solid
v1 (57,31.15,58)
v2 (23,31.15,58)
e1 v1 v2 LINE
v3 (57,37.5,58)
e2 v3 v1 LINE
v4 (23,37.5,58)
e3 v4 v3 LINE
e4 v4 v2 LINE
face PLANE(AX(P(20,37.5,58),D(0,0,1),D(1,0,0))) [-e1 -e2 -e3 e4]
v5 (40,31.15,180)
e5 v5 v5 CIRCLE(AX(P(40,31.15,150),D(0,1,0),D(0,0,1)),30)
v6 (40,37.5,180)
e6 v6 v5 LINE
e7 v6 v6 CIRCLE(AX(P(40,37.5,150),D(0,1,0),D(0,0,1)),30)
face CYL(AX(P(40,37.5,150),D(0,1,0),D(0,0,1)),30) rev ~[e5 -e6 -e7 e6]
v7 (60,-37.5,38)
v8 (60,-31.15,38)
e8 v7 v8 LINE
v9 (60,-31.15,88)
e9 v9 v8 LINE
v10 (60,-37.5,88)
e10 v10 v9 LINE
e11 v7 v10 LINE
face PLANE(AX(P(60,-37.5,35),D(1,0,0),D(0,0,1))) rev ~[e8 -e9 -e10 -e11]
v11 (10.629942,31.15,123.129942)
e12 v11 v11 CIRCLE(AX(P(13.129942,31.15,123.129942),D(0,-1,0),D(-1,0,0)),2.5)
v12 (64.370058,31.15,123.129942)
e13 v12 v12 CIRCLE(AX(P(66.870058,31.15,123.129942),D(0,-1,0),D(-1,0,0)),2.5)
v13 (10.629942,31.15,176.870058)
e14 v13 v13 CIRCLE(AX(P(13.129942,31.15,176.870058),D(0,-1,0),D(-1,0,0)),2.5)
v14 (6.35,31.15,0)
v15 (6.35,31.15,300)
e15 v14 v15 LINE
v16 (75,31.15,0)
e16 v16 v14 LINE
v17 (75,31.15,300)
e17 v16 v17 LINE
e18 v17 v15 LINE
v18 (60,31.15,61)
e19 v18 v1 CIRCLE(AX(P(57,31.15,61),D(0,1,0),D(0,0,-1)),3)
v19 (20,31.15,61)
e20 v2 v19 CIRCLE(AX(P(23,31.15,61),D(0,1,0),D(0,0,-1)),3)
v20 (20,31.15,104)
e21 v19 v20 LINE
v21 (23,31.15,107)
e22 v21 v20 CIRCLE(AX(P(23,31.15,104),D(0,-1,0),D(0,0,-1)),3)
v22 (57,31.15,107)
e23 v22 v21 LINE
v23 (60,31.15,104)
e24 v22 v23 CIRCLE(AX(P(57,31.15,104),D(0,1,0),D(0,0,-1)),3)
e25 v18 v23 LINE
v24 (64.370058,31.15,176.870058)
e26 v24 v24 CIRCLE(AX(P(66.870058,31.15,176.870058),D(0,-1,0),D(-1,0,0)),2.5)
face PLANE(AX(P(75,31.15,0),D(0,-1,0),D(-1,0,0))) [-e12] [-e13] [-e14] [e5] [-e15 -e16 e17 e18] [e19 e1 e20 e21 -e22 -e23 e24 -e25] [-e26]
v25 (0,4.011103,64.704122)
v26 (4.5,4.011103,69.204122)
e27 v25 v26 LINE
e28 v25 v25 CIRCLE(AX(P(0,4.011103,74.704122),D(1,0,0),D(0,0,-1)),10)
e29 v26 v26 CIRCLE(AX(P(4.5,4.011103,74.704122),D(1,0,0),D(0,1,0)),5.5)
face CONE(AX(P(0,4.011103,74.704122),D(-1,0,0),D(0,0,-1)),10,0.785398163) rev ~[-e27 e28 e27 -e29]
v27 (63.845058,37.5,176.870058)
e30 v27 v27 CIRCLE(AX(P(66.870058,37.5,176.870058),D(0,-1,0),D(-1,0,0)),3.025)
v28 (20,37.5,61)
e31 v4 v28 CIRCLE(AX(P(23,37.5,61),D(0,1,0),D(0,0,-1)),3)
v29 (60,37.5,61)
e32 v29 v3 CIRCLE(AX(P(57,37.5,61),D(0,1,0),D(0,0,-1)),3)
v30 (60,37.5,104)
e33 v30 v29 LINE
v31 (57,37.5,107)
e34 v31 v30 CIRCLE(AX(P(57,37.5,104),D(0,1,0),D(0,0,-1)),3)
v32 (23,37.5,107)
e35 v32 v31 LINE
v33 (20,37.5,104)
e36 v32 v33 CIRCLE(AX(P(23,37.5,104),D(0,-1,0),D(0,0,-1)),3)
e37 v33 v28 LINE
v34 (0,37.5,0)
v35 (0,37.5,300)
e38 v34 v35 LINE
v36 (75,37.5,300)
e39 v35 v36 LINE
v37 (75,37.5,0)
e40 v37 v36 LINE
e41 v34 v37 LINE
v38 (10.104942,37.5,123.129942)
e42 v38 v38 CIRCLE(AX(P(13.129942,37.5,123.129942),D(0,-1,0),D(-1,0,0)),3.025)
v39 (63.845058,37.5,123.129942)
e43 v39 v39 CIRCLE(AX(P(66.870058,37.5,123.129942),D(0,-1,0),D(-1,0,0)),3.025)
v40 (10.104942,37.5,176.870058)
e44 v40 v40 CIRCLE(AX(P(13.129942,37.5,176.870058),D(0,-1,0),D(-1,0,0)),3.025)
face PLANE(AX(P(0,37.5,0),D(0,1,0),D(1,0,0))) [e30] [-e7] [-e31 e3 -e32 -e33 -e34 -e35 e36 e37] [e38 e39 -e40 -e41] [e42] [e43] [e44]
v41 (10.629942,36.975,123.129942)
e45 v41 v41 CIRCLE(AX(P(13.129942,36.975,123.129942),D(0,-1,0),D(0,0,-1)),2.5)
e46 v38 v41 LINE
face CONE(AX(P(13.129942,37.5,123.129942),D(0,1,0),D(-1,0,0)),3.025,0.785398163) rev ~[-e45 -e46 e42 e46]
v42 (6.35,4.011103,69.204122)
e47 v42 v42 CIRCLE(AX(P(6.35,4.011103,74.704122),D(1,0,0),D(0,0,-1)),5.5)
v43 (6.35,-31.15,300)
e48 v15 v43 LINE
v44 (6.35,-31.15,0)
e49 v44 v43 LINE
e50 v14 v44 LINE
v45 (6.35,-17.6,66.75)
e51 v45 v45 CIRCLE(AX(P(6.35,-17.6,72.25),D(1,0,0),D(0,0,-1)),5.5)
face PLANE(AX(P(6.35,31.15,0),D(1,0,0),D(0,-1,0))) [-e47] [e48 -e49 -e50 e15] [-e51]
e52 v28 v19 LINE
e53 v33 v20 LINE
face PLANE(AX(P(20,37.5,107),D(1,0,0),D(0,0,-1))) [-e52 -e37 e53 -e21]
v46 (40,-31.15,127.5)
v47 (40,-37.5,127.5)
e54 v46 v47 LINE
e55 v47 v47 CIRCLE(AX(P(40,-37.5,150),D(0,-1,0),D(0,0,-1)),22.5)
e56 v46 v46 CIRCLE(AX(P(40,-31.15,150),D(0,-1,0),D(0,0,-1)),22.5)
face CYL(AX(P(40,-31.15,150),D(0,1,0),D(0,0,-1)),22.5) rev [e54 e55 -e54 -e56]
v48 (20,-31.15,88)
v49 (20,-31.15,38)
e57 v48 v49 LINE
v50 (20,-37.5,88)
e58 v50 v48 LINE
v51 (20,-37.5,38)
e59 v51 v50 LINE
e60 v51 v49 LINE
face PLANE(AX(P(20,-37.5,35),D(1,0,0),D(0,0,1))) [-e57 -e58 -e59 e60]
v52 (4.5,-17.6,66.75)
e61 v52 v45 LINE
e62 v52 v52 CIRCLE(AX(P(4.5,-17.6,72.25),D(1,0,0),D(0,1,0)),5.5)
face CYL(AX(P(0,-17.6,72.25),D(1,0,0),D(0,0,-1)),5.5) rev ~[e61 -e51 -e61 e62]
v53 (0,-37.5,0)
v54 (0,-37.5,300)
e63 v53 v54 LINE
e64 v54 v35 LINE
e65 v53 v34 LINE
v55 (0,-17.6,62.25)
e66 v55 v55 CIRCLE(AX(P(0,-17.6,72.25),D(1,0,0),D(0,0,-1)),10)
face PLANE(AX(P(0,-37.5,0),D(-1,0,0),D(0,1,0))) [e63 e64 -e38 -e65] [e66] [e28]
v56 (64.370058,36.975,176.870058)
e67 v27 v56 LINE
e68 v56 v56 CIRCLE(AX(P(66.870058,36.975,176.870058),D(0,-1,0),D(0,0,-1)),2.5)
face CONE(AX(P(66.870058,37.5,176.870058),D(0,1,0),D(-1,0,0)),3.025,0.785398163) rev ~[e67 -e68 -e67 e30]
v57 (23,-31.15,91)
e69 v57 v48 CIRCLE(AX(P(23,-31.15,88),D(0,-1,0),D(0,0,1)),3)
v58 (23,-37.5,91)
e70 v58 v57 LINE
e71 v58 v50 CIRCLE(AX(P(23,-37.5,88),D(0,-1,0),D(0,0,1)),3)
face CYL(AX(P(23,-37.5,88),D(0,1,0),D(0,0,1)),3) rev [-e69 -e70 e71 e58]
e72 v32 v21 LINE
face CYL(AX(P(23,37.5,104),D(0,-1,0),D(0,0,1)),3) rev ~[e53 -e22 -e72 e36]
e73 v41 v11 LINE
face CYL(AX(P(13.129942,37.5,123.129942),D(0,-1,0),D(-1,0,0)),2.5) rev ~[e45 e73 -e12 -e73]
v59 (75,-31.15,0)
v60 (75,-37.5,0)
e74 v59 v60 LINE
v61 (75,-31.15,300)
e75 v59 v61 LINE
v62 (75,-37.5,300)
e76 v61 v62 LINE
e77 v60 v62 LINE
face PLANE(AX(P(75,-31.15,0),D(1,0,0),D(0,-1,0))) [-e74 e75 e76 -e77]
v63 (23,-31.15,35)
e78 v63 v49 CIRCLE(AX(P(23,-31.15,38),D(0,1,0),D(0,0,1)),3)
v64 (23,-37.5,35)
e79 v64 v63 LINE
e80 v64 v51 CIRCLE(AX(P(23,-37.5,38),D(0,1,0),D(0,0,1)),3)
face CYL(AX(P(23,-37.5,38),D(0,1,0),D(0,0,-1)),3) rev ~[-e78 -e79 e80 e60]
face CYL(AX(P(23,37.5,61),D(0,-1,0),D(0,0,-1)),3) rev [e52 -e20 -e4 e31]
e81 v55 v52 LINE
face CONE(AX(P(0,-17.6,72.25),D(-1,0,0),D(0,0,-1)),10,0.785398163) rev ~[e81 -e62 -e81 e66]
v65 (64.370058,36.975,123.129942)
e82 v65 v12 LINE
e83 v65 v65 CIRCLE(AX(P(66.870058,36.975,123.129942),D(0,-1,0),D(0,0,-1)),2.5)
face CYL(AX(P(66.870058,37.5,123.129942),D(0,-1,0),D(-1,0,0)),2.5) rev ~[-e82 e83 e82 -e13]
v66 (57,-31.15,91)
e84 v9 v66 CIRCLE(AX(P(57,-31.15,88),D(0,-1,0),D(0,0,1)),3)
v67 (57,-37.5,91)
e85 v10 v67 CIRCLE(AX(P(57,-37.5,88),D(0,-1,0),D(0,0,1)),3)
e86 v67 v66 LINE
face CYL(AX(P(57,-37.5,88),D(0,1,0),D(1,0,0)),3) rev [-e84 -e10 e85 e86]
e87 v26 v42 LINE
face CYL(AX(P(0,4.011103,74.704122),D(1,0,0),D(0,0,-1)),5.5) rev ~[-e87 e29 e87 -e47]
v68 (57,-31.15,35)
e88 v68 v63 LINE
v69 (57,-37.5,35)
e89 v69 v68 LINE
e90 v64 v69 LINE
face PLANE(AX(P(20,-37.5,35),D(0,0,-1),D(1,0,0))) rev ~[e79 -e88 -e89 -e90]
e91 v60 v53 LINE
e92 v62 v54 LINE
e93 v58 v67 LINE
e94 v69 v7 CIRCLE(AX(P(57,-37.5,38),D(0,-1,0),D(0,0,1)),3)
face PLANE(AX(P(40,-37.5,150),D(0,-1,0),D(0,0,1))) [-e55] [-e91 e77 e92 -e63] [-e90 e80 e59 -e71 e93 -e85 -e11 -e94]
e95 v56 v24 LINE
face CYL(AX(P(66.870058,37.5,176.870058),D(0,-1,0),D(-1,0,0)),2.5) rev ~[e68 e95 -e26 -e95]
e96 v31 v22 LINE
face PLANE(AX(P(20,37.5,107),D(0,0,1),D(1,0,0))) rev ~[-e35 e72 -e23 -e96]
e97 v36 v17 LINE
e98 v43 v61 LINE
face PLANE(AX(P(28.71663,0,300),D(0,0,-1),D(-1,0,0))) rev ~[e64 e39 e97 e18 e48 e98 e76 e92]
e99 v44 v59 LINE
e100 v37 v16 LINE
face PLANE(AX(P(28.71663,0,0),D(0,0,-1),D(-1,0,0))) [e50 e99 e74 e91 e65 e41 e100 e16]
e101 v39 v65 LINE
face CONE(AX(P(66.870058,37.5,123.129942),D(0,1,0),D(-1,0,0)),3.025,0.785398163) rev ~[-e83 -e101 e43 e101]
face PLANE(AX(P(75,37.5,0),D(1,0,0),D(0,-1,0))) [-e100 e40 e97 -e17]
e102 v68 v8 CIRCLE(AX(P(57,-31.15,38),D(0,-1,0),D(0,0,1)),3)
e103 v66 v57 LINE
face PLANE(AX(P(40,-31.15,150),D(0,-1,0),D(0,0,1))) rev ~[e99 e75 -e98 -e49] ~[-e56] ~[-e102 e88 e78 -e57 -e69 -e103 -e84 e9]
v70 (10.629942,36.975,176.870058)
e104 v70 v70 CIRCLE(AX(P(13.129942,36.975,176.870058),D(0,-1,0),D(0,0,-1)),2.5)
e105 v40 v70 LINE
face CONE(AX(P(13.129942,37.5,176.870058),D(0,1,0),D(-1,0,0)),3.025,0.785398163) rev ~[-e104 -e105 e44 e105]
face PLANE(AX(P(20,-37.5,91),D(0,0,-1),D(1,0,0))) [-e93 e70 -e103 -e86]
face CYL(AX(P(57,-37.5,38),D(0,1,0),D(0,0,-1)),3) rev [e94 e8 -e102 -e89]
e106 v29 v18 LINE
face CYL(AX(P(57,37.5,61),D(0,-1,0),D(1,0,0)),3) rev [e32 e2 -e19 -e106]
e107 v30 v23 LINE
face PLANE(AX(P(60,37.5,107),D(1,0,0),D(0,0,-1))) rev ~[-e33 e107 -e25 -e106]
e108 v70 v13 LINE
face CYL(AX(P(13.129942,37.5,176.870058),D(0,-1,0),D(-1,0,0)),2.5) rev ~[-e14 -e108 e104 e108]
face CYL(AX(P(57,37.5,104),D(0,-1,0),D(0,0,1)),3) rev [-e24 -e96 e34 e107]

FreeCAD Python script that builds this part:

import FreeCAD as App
import Part
import Sketcher
from FreeCAD import Vector
Q = App.Units.Quantity


def edges_at(feature, points):
    """Names of the edges that pass closest to the given points."""
    edges = feature.Shape.Edges
    near = lambda p: min(range(len(edges)), key=lambda i: edges[i].distToShape(Part.Vertex(*p))[0])
    return sorted({f"Edge{near(p) + 1}" for p in points})

doc = App.newDocument("Part")
params = doc.addObject("Spreadsheet::Sheet", "Params")
for row, (alias, value) in enumerate([
    ("sketch1_width", "75 mm"),
    ("sketch1_height", "62.3 mm"),
    ("sketch1_width2", "68.65 mm"),
    ("pad1_length", "300 mm"),
    ("sketch2_diameter", "60 mm"),
    ("sketch3_width", "40 mm"),
    ("sketch3_height", "56 mm"),
    ("pocket2_length", "10 mm"),
    ("sketch4_width", "40 mm"),
    ("sketch4_height", "49 mm"),
    ("pocket3_length", "10 mm"),
    ("fillet_radius", "3 mm"),
    ("sketch5_diameter", "11 mm"),
    ("hole_diameter", "11 mm"),
    ("hole_depth", "20.003 mm"),
    ("hole_csink_diameter", "20 mm"),
    ("sketch6_diameter", "60 mm"),
    ("sketch6_diameter2", "45 mm"),
    ("pad2_length", "6.35 mm"),
    ("sketch7_diameter", "5 mm"),
    ("hole2_diameter", "5 mm"),
    ("hole2_depth", "15 mm"),
    ("hole2_csink_diameter", "6.05 mm"),
], start=1):
    params.set(f"A{row}", alias)
    params.set(f"B{row}", "=" + value)
    params.setAlias(f"B{row}", alias)

body = doc.addObject("PartDesign::Body", "Body")

sketch1 = body.newObject("Sketcher::SketchObject", "Sketch")
sketch1.AttachmentSupport = (doc.getObject("XY_Plane"), [""])
sketch1.MapMode = "FlatFace"
sketch1.addGeometry(Part.LineSegment(Vector(0, 37.5, 0), Vector(0, -37.5, 0)), False)
sketch1.addGeometry(Part.LineSegment(Vector(0, -37.5, 0), Vector(75, -37.5, 0)), False)
sketch1.addGeometry(Part.LineSegment(Vector(75, -37.5, 0), Vector(75, -31.15, 0)), False)
sketch1.addGeometry(Part.LineSegment(Vector(75, -31.15, 0), Vector(6.35, -31.15, 0)), False)
sketch1.addGeometry(Part.LineSegment(Vector(6.35, -31.15, 0), Vector(6.35, 31.15, 0)), False)
sketch1.addGeometry(Part.LineSegment(Vector(6.35, 31.15, 0), Vector(75, 31.15, 0)), False)
sketch1.addGeometry(Part.LineSegment(Vector(75, 31.15, 0), Vector(75, 37.5, 0)), False)
sketch1.addGeometry(Part.LineSegment(Vector(75, 37.5, 0), Vector(0, 37.5, 0)), False)
sketch1.addConstraint(Sketcher.Constraint("Coincident", 0, 2, 1, 1))
sketch1.addConstraint(Sketcher.Constraint("Coincident", 1, 2, 2, 1))
sketch1.addConstraint(Sketcher.Constraint("Coincident", 2, 2, 3, 1))
sketch1.addConstraint(Sketcher.Constraint("Coincident", 3, 2, 4, 1))
sketch1.addConstraint(Sketcher.Constraint("Coincident", 4, 2, 5, 1))
sketch1.addConstraint(Sketcher.Constraint("Coincident", 5, 2, 6, 1))
sketch1.addConstraint(Sketcher.Constraint("Coincident", 6, 2, 7, 1))
sketch1.addConstraint(Sketcher.Constraint("Coincident", 7, 2, 0, 1))
sketch1.addConstraint(Sketcher.Constraint("Vertical", 0))
sketch1.addConstraint(Sketcher.Constraint("Horizontal", 1))
sketch1.addConstraint(Sketcher.Constraint("Vertical", 2))
sketch1.addConstraint(Sketcher.Constraint("Horizontal", 3))
sketch1.addConstraint(Sketcher.Constraint("Vertical", 4))
sketch1.addConstraint(Sketcher.Constraint("Horizontal", 5))
sketch1.addConstraint(Sketcher.Constraint("Vertical", 6))
sketch1.addConstraint(Sketcher.Constraint("Horizontal", 7))
sketch1.addConstraint(Sketcher.Constraint("Symmetric", 0, 2, 7, 2, -1, 1))
sketch1.addConstraint(Sketcher.Constraint("Symmetric", 2, 2, 5, 2, -1))
sketch1.addConstraint(Sketcher.Constraint("Equal", 7, 0))
sketch1.addConstraint(Sketcher.Constraint("DistanceX", 1, 1, 1, 2, Q("75 mm")))
sketch1.addConstraint(Sketcher.Constraint("DistanceY", 4, 1, 4, 2, Q("62.3 mm")))
sketch1.addConstraint(Sketcher.Constraint("DistanceX", 3, 2, 3, 1, Q("68.65 mm")))
sketch1.setExpression("Constraints[19]", "Params.sketch1_width")
sketch1.setExpression("Constraints[20]", "Params.sketch1_height")
sketch1.setExpression("Constraints[21]", "Params.sketch1_width2")
pad1 = body.newObject("PartDesign::Pad", "Pad")
pad1.Profile = sketch1
pad1.setExpression("Length", "Params.pad1_length")

sketch2 = body.newObject("Sketcher::SketchObject", "Sketch001")
sketch2.AttachmentSupport = (doc.getObject("XZ_Plane"), [""])
sketch2.MapMode = "FlatFace"
sketch2.AttachmentOffset = App.Placement(Vector(0, 0, -37.5), App.Rotation())
sketch2.addGeometry(Part.Circle(Vector(40, 150, 0), Vector(0, 0, 1), 30), False)
sketch2.addConstraint(Sketcher.Constraint("Diameter", 0, Q("60 mm")))
sketch2.addConstraint(Sketcher.Constraint("DistanceX", -1, 1, 0, 3, Q("40 mm")))
sketch2.addConstraint(Sketcher.Constraint("DistanceY", -1, 1, 0, 3, Q("150 mm")))
sketch2.setExpression("Constraints[0]", "Params.sketch2_diameter")
pocket1 = body.newObject("PartDesign::Pocket", "Pocket")
pocket1.Profile = sketch2
pocket1.Type = "ThroughAll"
pocket1.Reversed = True

sketch3 = body.newObject("Sketcher::SketchObject", "Sketch002")
sketch3.AttachmentSupport = (doc.getObject("XZ_Plane"), [""])
sketch3.MapMode = "FlatFace"
sketch3.AttachmentOffset = App.Placement(Vector(0, 0, 37.5), App.Rotation())
sketch3.addGeometry(Part.LineSegment(Vector(20, 91, 0), Vector(20, 35, 0)), False)
sketch3.addGeometry(Part.LineSegment(Vector(20, 35, 0), Vector(60, 35, 0)), False)
sketch3.addGeometry(Part.LineSegment(Vector(60, 35, 0), Vector(60, 91, 0)), False)
sketch3.addGeometry(Part.LineSegment(Vector(60, 91, 0), Vector(20, 91, 0)), False)
sketch3.addConstraint(Sketcher.Constraint("Coincident", 0, 2, 1, 1))
sketch3.addConstraint(Sketcher.Constraint("Coincident", 1, 2, 2, 1))
sketch3.addConstraint(Sketcher.Constraint("Coincident", 2, 2, 3, 1))
sketch3.addConstraint(Sketcher.Constraint("Coincident", 3, 2, 0, 1))
sketch3.addConstraint(Sketcher.Constraint("Vertical", 0))
sketch3.addConstraint(Sketcher.Constraint("Horizontal", 1))
sketch3.addConstraint(Sketcher.Constraint("Vertical", 2))
sketch3.addConstraint(Sketcher.Constraint("Horizontal", 3))
sketch3.addConstraint(Sketcher.Constraint("DistanceX", 1, 1, 1, 2, Q("40 mm")))
sketch3.addConstraint(Sketcher.Constraint("DistanceY", 0, 2, 0, 1, Q("56 mm")))
sketch3.addConstraint(Sketcher.Constraint("DistanceX", -1, 1, 0, 2, Q("20 mm")))
sketch3.addConstraint(Sketcher.Constraint("DistanceY", -1, 1, 0, 2, Q("35 mm")))
sketch3.setExpression("Constraints[8]", "Params.sketch3_width")
sketch3.setExpression("Constraints[9]", "Params.sketch3_height")
pocket2 = body.newObject("PartDesign::Pocket", "Pocket001")
pocket2.Profile = sketch3
pocket2.setExpression("Length", "Params.pocket2_length")

sketch4 = body.newObject("Sketcher::SketchObject", "Sketch003")
sketch4.AttachmentSupport = (doc.getObject("XZ_Plane"), [""])
sketch4.MapMode = "FlatFace"
sketch4.AttachmentOffset = App.Placement(Vector(0, 0, -37.5), App.Rotation())
sketch4.addGeometry(Part.LineSegment(Vector(20, 58, 0), Vector(20, 107, 0)), False)
sketch4.addGeometry(Part.LineSegment(Vector(20, 107, 0), Vector(60, 107, 0)), False)
sketch4.addGeometry(Part.LineSegment(Vector(60, 107, 0), Vector(60, 58, 0)), False)
sketch4.addGeometry(Part.LineSegment(Vector(60, 58, 0), Vector(20, 58, 0)), False)
sketch4.addConstraint(Sketcher.Constraint("Coincident", 0, 2, 1, 1))
sketch4.addConstraint(Sketcher.Constraint("Coincident", 1, 2, 2, 1))
sketch4.addConstraint(Sketcher.Constraint("Coincident", 2, 2, 3, 1))
sketch4.addConstraint(Sketcher.Constraint("Coincident", 3, 2, 0, 1))
sketch4.addConstraint(Sketcher.Constraint("Vertical", 0))
sketch4.addConstraint(Sketcher.Constraint("Horizontal", 1))
sketch4.addConstraint(Sketcher.Constraint("Vertical", 2))
sketch4.addConstraint(Sketcher.Constraint("Horizontal", 3))
sketch4.addConstraint(Sketcher.Constraint("DistanceX", 1, 1, 1, 2, Q("40 mm")))
sketch4.addConstraint(Sketcher.Constraint("DistanceY", 0, 1, 0, 2, Q("49 mm")))
sketch4.addConstraint(Sketcher.Constraint("DistanceX", -1, 1, 0, 2, Q("20 mm")))
sketch4.addConstraint(Sketcher.Constraint("DistanceY", -1, 1, 0, 2, Q("107 mm")))
sketch4.setExpression("Constraints[8]", "Params.sketch4_width")
sketch4.setExpression("Constraints[9]", "Params.sketch4_height")
pocket3 = body.newObject("PartDesign::Pocket", "Pocket002")
pocket3.Profile = sketch4
pocket3.setExpression("Length", "Params.pocket3_length")
pocket3.Reversed = True
doc.recompute()

fillet = body.newObject("PartDesign::Fillet", "Fillet")
fillet.Base = (pocket3, edges_at(pocket3, [
    (20, -34.325, 91),
    (60, -34.325, 91),
    (60, -34.325, 35),
    (20, -34.325, 35),
    (60, 34.325, 107),
    (20, 34.325, 107),
    (20, 34.325, 58),
    (60, 34.325, 58),
]))
fillet.setExpression("Radius", "Params.fillet_radius")

sketch5 = body.newObject("Sketcher::SketchObject", "Sketch004")
sketch5.AttachmentSupport = (doc.getObject("YZ_Plane"), [""])
sketch5.MapMode = "FlatFace"
sketch5.addGeometry(Part.Circle(Vector(4.011103, 74.704122, 0), Vector(0, 0, 1), 5.5), False)
sketch5.addGeometry(Part.Circle(Vector(-17.6, 72.25, 0), Vector(0, 0, 1), 5.5), False)
sketch5.addConstraint(Sketcher.Constraint("Equal", 0, 1))
sketch5.addConstraint(Sketcher.Constraint("Diameter", 0, Q("11 mm")))
sketch5.addConstraint(Sketcher.Constraint("DistanceX", 1, 3, -1, 1, Q("17.6 mm")))
sketch5.addConstraint(Sketcher.Constraint("DistanceY", -1, 1, 1, 3, Q("72.25 mm")))
sketch5.addConstraint(Sketcher.Constraint("DistanceY", -1, 1, 0, 3, Q("74.704122 mm")))
sketch5.addConstraint(Sketcher.Constraint("DistanceX", -1, 1, 0, 3, Q("4.011103 mm")))
sketch5.setExpression("Constraints[1]", "Params.sketch5_diameter")
doc.recompute()
hole = body.newObject("PartDesign::Hole", "Hole")
hole.Profile = sketch5
hole.ThreadType = "None"
hole.setExpression("Diameter", "Params.hole_diameter")
hole.DepthType = "Dimension"
hole.setExpression("Depth", "Params.hole_depth")
hole.DrillPoint = "Angled"
hole.DrillPointAngle = 118
hole.HoleCutType = "Countersink"
hole.setExpression("HoleCutDiameter", "Params.hole_csink_diameter")
hole.HoleCutCountersinkAngle = 90
hole.Reversed = True

sketch6 = body.newObject("Sketcher::SketchObject", "Sketch005")
sketch6.AttachmentSupport = (doc.getObject("XZ_Plane"), [""])
sketch6.MapMode = "FlatFace"
sketch6.AttachmentOffset = App.Placement(Vector(0, 0, 31.15), App.Rotation())
sketch6.addGeometry(Part.Circle(Vector(40, 150, 0), Vector(0, 0, 1), 30), False)
sketch6.addGeometry(Part.Circle(Vector(40, 150, 0), Vector(0, 0, 1), 22.5), False)
sketch6.addConstraint(Sketcher.Constraint("Coincident", 1, 3, 0, 3))
sketch6.addConstraint(Sketcher.Constraint("Diameter", 0, Q("60 mm")))
sketch6.addConstraint(Sketcher.Constraint("Diameter", 1, Q("45 mm")))
sketch6.addConstraint(Sketcher.Constraint("DistanceX", -1, 1, 0, 3, Q("40 mm")))
sketch6.addConstraint(Sketcher.Constraint("DistanceY", -1, 1, 0, 3, Q("150 mm")))
sketch6.setExpression("Constraints[1]", "Params.sketch6_diameter")
sketch6.setExpression("Constraints[2]", "Params.sketch6_diameter2")
pad2 = body.newObject("PartDesign::Pad", "Pad001")
pad2.Profile = sketch6
pad2.setExpression("Length", "Params.pad2_length")

sketch7 = body.newObject("Sketcher::SketchObject", "Sketch006")
sketch7.AttachmentSupport = (doc.getObject("XZ_Plane"), [""])
sketch7.MapMode = "FlatFace"
sketch7.AttachmentOffset = App.Placement(Vector(0, 0, -37.5), App.Rotation())
sketch7.addGeometry(Part.Circle(Vector(66.870058, 123.129942, 0), Vector(0, 0, 1), 2.5), False)
sketch7.addGeometry(Part.Circle(Vector(13.129942, 123.129942, 0), Vector(0, 0, 1), 2.5), False)
sketch7.addGeometry(Part.Circle(Vector(13.129942, 176.870058, 0), Vector(0, 0, 1), 2.5), False)
sketch7.addGeometry(Part.Circle(Vector(66.870058, 176.870058, 0), Vector(0, 0, 1), 2.5), False)
sketch7.addConstraint(Sketcher.Constraint("Equal", 0, 1))
sketch7.addConstraint(Sketcher.Constraint("Equal", 1, 2))
sketch7.addConstraint(Sketcher.Constraint("Equal", 2, 3))
sketch7.addConstraint(Sketcher.Constraint("Horizontal", 0, 3, 1, 3))
sketch7.addConstraint(Sketcher.Constraint("Horizontal", 2, 3, 3, 3))
sketch7.addConstraint(Sketcher.Constraint("Vertical", 1, 3, 2, 3))
sketch7.addConstraint(Sketcher.Constraint("Vertical", 0, 3, 3, 3))
sketch7.addConstraint(Sketcher.Constraint("Diameter", 0, Q("5 mm")))
sketch7.addConstraint(Sketcher.Constraint("DistanceX", -1, 1, 0, 3, Q("66.870058 mm")))
sketch7.addConstraint(Sketcher.Constraint("DistanceY", -1, 1, 0, 3, Q("123.129942 mm")))
sketch7.addConstraint(Sketcher.Constraint("DistanceX", -1, 1, 1, 3, Q("13.129942 mm")))
sketch7.addConstraint(Sketcher.Constraint("DistanceY", -1, 1, 2, 3, Q("176.870058 mm")))
sketch7.setExpression("Constraints[7]", "Params.sketch7_diameter")
doc.recompute()
hole2 = body.newObject("PartDesign::Hole", "Hole001")
hole2.Profile = sketch7
hole2.ThreadType = "None"
hole2.setExpression("Diameter", "Params.hole2_diameter")
hole2.DepthType = "Dimension"
hole2.setExpression("Depth", "Params.hole2_depth")
hole2.DrillPoint = "Angled"
hole2.DrillPointAngle = 118
hole2.HoleCutType = "Countersink"
hole2.setExpression("HoleCutDiameter", "Params.hole2_csink_diameter")
hole2.HoleCutCountersinkAngle = 90
hole2.Reversed = True

doc.recompute()
